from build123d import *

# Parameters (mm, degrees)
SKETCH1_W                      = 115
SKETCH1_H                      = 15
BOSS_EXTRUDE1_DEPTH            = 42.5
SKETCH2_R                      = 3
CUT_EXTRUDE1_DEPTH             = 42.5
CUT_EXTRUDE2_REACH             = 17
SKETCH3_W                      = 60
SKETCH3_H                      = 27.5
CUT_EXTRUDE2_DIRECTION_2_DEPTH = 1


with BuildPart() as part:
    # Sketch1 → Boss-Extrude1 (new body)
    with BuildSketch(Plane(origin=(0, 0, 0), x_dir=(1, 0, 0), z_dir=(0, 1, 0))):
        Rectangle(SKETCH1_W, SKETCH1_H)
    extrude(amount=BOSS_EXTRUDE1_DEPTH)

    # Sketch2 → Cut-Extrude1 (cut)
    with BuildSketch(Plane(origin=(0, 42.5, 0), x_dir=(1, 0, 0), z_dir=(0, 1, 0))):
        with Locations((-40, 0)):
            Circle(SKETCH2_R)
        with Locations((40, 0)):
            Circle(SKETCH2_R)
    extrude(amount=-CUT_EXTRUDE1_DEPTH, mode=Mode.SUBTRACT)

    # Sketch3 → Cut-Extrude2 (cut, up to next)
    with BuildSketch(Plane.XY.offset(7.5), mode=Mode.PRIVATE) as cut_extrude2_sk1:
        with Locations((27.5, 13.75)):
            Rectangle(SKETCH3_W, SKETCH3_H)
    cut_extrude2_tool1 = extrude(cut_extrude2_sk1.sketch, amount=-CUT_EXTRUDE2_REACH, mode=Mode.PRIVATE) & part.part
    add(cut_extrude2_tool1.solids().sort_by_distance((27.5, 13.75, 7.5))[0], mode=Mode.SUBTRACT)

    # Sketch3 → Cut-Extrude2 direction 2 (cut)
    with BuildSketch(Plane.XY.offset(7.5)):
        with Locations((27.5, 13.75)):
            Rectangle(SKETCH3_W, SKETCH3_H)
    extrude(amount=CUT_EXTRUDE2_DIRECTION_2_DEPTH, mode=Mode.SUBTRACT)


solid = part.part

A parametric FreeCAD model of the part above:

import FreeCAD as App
import Part
import Sketcher

V = App.Vector
Q = App.Units.Quantity

doc = App.newDocument("Part")
body = doc.addObject("PartDesign::Body", "Body")

# Sketch on XZ plane
sketch1 = body.newObject("Sketcher::SketchObject", "Sketch")
sketch1.AttachmentSupport = (doc.getObject("XZ_Plane"), [""])
sketch1.MapMode = "FlatFace"
sketch1.addGeometry([
    Part.LineSegment(V(-58, -8, 0), V(-58, 8, 0)),
    Part.LineSegment(V(-58, 8, 0), V(58, 8, 0)),
    Part.LineSegment(V(58, 8, 0), V(58, -8, 0)),
    Part.LineSegment(V(58, -8, 0), V(-58, -8, 0)),
], False)
sketch1.addConstraint([
    Sketcher.Constraint("Coincident", 0, 2, 1, 1),
    Sketcher.Constraint("Coincident", 1, 2, 2, 1),
    Sketcher.Constraint("Coincident", 2, 2, 3, 1),
    Sketcher.Constraint("Coincident", 3, 2, 0, 1),
    Sketcher.Constraint("Vertical", 0),
    Sketcher.Constraint("Horizontal", 1),
    Sketcher.Constraint("Vertical", 2),
    Sketcher.Constraint("Horizontal", 3),
    Sketcher.Constraint("Symmetric", 0, 2, 2, 2, -1, 1),
    Sketcher.Constraint("DistanceX", 1, 1, 1, 2, Q("115 mm")),
    Sketcher.Constraint("DistanceY", 0, 1, 0, 2, Q("15 mm")),
])
pad1 = body.newObject("PartDesign::Pad", "Pad")
pad1.Profile = sketch1
pad1.Length = 42.5
pad1.Reversed = True

# Sketch on XZ plane
sketch2 = body.newObject("Sketcher::SketchObject", "Sketch001")
sketch2.AttachmentSupport = (doc.getObject("XZ_Plane"), [""])
sketch2.MapMode = "FlatFace"
sketch2.AttachmentOffset = App.Placement(V(0, 0, -42.5), App.Rotation())
sketch2.addGeometry([
    Part.Circle(V(-40, 0, 0), V(0, 0, 1), 3),
    Part.Circle(V(40, 0, 0), V(0, 0, 1), 3),
], False)
sketch2.addConstraint([
    Sketcher.Constraint("Equal", 0, 1),
    Sketcher.Constraint("Symmetric", 0, 3, 1, 3, -1, 1),
    Sketcher.Constraint("PointOnObject", 0, 3, -1),
    Sketcher.Constraint("Diameter", 0, Q("6 mm")),
    Sketcher.Constraint("DistanceX", 0, 3, -1, 1, Q("40 mm")),
])
pocket1 = body.newObject("PartDesign::Pocket", "Pocket")
pocket1.Profile = sketch2
pocket1.Length = 42.5
pocket1.Reversed = True

# Sketch on XY plane
sketch3 = body.newObject("Sketcher::SketchObject", "Sketch002")
sketch3.AttachmentSupport = (doc.getObject("XY_Plane"), [""])
sketch3.MapMode = "FlatFace"
sketch3.AttachmentOffset = App.Placement(V(0, 0, 7.5), App.Rotation())
sketch3.addGeometry([
    Part.LineSegment(V(-2, 28, 0), V(-2, 0, 0)),
    Part.LineSegment(V(-2, 0, 0), V(58, 0, 0)),
    Part.LineSegment(V(58, 0, 0), V(58, 28, 0)),
    Part.LineSegment(V(58, 28, 0), V(-2, 28, 0)),
], False)
sketch3.addConstraint([
    Sketcher.Constraint("Coincident", 0, 2, 1, 1),
    Sketcher.Constraint("Coincident", 1, 2, 2, 1),
    Sketcher.Constraint("Coincident", 2, 2, 3, 1),
    Sketcher.Constraint("Coincident", 3, 2, 0, 1),
    Sketcher.Constraint("Vertical", 0),
    Sketcher.Constraint("Horizontal", 1),
    Sketcher.Constraint("Vertical", 2),
    Sketcher.Constraint("Horizontal", 3),
    Sketcher.Constraint("PointOnObject", 0, 2, -1),
    Sketcher.Constraint("DistanceX", 1, 1, 1, 2, Q("60 mm")),
    Sketcher.Constraint("DistanceY", 0, 2, 0, 1, Q("27.5 mm")),
    Sketcher.Constraint("DistanceX", 0, 2, -1, 1, Q("2.5 mm")),
])
pocket2 = body.newObject("PartDesign::Pocket", "Pocket001")
pocket2.Profile = sketch3
pocket2.Type = "UpToFirst"

# Sketch on XY plane
sketch4 = body.newObject("Sketcher::SketchObject", "Sketch003")
sketch4.AttachmentSupport = (doc.getObject("XY_Plane"), [""])
sketch4.MapMode = "FlatFace"
sketch4.AttachmentOffset = App.Placement(V(0, 0, 7.5), App.Rotation())
sketch4.addGeometry([
    Part.LineSegment(V(-2, 28, 0), V(-2, 0, 0)),
    Part.LineSegment(V(-2, 0, 0), V(58, 0, 0)),
    Part.LineSegment(V(58, 0, 0), V(58, 28, 0)),
    Part.LineSegment(V(58, 28, 0), V(-2, 28, 0)),
], False)
sketch4.addConstraint([
    Sketcher.Constraint("Coincident", 0, 2, 1, 1),
    Sketcher.Constraint("Coincident", 1, 2, 2, 1),
    Sketcher.Constraint("Coincident", 2, 2, 3, 1),
    Sketcher.Constraint("Coincident", 3, 2, 0, 1),
    Sketcher.Constraint("Vertical", 0),
    Sketcher.Constraint("Horizontal", 1),
    Sketcher.Constraint("Vertical", 2),
    Sketcher.Constraint("Horizontal", 3),
    Sketcher.Constraint("PointOnObject", 0, 2, -1),
    Sketcher.Constraint("DistanceX", 1, 1, 1, 2, Q("60 mm")),
    Sketcher.Constraint("DistanceY", 0, 2, 0, 1, Q("27.5 mm")),
    Sketcher.Constraint("DistanceX", 0, 2, -1, 1, Q("2.5 mm")),
])
pocket3 = body.newObject("PartDesign::Pocket", "Pocket002")
pocket3.Profile = sketch4
pocket3.Length = 1
pocket3.Reversed = True

doc.recompute()
